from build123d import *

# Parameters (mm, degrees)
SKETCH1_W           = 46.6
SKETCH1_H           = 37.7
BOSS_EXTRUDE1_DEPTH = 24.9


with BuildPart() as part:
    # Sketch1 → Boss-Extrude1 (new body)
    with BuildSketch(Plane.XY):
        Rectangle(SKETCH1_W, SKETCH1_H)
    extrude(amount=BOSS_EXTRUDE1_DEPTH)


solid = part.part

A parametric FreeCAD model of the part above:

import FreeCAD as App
import Part
import Sketcher

V = App.Vector


def add_polygon(sketch, points):
    """Adds a closed chain of lines whose ends are joined by coincident constraints."""
    first, n = sketch.GeometryCount, len(points)
    for a, b in zip(points, points[1:] + points[:1]):
        sketch.addGeometry(Part.LineSegment(App.Vector(*a, 0), App.Vector(*b, 0)), False)
    for i in range(n):
        sketch.addConstraint(Sketcher.Constraint("Coincident", first + i, 2, first + (i + 1) % n, 1))

doc = App.newDocument("Part")
params = doc.addObject("Spreadsheet::Sheet", "Params")
for row, (alias, value) in enumerate([
    ("sketch1_width", "46.6 mm"),
    ("sketch1_height", "37.7 mm"),
    ("pad1_length", "24.9 mm"),
], start=1):
    params.set(f"A{row}", alias)
    params.set(f"B{row}", "=" + value)
    params.setAlias(f"B{row}", alias)

body = doc.addObject("PartDesign::Body", "Body")

# Sketch on XY plane
sketch1 = body.newObject("Sketcher::SketchObject", "Sketch")
sketch1.AttachmentSupport = (doc.getObject("XY_Plane"), [""])
sketch1.MapMode = "FlatFace"
add_polygon(sketch1, [(-23, 19), (-23, -19), (23, -19), (23, 19)])  # lines 0-3
sketch1.addConstraint([
    Sketcher.Constraint("Vertical", 0),
    Sketcher.Constraint("Horizontal", 1),
    Sketcher.Constraint("Vertical", 2),
    Sketcher.Constraint("Horizontal", 3),
    Sketcher.Constraint("Symmetric", 0, 2, 2, 2, -1, 1),
    Sketcher.Constraint("DistanceX", 1, 1, 1, 2, 46.6),
    Sketcher.Constraint("DistanceY", 0, 2, 0, 1, 37.7),
])
sketch1.setExpression("Constraints[9]", "Params.sketch1_width")
sketch1.setExpression("Constraints[10]", "Params.sketch1_height")
pad1 = body.newObject("PartDesign::Pad", "Pad")
pad1.Profile = sketch1
pad1.setExpression("Length", "Params.pad1_length")

doc.recompute()
